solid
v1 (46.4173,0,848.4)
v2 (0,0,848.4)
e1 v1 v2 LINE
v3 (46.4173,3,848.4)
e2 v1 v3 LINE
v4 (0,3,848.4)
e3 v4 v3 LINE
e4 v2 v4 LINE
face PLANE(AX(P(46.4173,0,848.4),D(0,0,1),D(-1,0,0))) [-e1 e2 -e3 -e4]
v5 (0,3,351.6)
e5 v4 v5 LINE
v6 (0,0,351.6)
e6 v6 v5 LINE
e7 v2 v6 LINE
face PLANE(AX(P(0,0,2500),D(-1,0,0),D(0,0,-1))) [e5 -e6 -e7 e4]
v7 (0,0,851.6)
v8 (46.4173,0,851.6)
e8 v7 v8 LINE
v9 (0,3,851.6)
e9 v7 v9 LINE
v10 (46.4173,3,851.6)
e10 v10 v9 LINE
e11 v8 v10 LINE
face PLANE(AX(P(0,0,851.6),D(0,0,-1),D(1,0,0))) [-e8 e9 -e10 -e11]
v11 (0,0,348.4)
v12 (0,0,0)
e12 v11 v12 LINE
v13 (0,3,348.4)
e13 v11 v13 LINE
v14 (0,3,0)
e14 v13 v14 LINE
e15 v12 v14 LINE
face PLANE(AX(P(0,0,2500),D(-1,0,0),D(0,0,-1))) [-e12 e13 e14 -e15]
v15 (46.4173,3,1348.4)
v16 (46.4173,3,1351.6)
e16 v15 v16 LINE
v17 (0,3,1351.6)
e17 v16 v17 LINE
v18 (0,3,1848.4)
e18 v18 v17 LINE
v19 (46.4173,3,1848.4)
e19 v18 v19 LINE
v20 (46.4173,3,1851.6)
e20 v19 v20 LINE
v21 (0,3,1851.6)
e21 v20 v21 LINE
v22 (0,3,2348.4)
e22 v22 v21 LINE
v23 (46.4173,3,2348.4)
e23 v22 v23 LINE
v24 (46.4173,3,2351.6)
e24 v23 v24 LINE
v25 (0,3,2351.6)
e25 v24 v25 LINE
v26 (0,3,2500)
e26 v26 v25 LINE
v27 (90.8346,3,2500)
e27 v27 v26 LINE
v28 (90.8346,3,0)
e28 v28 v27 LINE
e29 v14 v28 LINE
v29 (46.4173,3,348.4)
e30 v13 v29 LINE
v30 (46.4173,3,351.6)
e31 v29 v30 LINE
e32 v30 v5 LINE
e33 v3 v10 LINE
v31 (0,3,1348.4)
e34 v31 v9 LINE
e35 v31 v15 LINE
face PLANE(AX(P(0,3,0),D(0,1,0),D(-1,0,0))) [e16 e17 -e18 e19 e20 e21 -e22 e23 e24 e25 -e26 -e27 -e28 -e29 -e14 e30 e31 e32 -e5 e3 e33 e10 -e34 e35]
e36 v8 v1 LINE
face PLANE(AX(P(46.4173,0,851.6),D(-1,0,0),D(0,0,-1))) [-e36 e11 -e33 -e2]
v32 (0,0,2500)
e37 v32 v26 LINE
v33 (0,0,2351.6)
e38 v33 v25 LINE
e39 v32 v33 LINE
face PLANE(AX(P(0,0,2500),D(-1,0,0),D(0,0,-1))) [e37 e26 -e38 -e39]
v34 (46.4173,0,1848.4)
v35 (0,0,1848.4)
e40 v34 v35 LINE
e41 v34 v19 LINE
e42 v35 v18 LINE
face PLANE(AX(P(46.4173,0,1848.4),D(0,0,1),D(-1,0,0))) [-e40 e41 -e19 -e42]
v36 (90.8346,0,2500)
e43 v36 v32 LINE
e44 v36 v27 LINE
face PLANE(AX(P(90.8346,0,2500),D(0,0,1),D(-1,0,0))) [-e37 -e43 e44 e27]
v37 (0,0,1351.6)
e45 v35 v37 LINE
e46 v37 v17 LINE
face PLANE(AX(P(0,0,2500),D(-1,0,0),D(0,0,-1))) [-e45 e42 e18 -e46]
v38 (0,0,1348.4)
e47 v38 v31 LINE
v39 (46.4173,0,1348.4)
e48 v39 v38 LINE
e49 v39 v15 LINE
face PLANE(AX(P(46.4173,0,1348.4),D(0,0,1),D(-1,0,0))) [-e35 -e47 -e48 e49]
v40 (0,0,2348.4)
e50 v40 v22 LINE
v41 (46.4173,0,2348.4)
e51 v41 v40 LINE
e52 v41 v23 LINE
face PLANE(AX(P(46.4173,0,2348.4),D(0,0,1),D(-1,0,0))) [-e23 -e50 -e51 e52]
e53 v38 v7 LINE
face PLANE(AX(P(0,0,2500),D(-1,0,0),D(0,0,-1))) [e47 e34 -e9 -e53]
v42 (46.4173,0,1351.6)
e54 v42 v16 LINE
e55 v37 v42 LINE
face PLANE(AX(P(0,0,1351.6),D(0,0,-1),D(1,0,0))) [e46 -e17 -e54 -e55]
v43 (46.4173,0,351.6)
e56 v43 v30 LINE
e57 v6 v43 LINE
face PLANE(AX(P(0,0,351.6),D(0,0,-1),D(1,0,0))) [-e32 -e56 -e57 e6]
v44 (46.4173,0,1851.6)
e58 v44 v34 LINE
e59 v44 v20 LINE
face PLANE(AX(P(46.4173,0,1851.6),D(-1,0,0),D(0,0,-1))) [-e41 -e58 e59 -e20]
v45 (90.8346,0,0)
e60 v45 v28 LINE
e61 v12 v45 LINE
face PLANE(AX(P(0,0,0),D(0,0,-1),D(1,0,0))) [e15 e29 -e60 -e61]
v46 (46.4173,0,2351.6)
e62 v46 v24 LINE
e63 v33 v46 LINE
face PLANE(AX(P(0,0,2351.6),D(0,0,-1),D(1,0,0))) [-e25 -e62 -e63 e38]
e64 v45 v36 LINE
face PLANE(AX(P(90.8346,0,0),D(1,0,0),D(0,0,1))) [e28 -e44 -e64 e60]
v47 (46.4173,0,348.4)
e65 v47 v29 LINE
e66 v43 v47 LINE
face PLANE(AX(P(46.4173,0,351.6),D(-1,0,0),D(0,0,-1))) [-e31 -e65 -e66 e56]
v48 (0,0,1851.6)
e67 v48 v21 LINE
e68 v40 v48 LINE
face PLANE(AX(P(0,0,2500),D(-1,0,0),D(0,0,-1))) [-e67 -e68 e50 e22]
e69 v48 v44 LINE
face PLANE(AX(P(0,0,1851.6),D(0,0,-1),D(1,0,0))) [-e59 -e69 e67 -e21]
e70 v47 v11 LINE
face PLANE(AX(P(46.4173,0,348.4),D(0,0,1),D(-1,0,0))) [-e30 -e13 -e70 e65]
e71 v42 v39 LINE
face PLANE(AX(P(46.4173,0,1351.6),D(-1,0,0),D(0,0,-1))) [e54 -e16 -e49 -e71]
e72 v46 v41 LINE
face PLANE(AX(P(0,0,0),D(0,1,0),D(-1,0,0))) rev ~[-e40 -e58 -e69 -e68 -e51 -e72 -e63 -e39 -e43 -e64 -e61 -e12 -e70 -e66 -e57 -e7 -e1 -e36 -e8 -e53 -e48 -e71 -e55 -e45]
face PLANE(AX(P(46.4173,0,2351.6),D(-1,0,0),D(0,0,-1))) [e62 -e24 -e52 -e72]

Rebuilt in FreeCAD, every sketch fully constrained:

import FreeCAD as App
import Part
import Sketcher
from FreeCAD import Vector

doc = App.newDocument("Part")
params = doc.addObject("Spreadsheet::Sheet", "Params")
for row, (alias, value) in enumerate([
    ("sketch1_height", "2500 mm"),
    ("pad1_length", "3 mm"),
    ("sketch2_height", "3.2 mm"),
    ("linearpattern_pitch", "500 mm"),
], start=1):
    params.set(f"A{row}", alias)
    params.set(f"B{row}", "=" + value)
    params.setAlias(f"B{row}", alias)

body = doc.addObject("PartDesign::Body", "Body")

# Sketch on XZ plane
sketch1 = doc.addObject("Sketcher::SketchObject", "Sketch")
body.addObject(sketch1)
sketch1.AttachmentSupport = (doc.XZ_Plane, [""])
sketch1.MapMode = "FlatFace"
sketch1.addGeometry(Part.LineSegment(Vector(91, 0, 0), Vector(0, 0, 0)), False)
sketch1.addGeometry(Part.LineSegment(Vector(0, 0, 0), Vector(0, 2500, 0)), False)
sketch1.addGeometry(Part.LineSegment(Vector(0, 2500, 0), Vector(91, 2500, 0)), False)
sketch1.addGeometry(Part.LineSegment(Vector(91, 2500, 0), Vector(91, 0, 0)), False)
sketch1.addConstraint(Sketcher.Constraint("Coincident", 0, 2, 1, 1))
sketch1.addConstraint(Sketcher.Constraint("Coincident", 1, 2, 2, 1))
sketch1.addConstraint(Sketcher.Constraint("Coincident", 2, 2, 3, 1))
sketch1.addConstraint(Sketcher.Constraint("Coincident", 3, 2, 0, 1))
sketch1.addConstraint(Sketcher.Constraint("Horizontal", 0))
sketch1.addConstraint(Sketcher.Constraint("Vertical", 1))
sketch1.addConstraint(Sketcher.Constraint("Horizontal", 2))
sketch1.addConstraint(Sketcher.Constraint("Vertical", 3))
sketch1.addConstraint(Sketcher.Constraint("Coincident", 0, 2, -1, 1))
sketch1.addConstraint(Sketcher.Constraint("DistanceY", 1, 1, 1, 2, 2500.0))
sketch1.addConstraint(Sketcher.Constraint("DistanceX", 0, 2, 0, 1, 90.8346))
sketch1.setExpression("Constraints[9]", "Params.sketch1_height")
pad1 = doc.addObject("PartDesign::Pad", "Pad")
body.addObject(pad1)
pad1.Profile = sketch1
pad1.setExpression("Length", "Params.pad1_length")
pad1.Reversed = True

# Sketch on XZ plane
sketch2 = doc.addObject("Sketcher::SketchObject", "Sketch001")
body.addObject(sketch2)
sketch2.AttachmentSupport = (doc.XZ_Plane, [""])
sketch2.MapMode = "FlatFace"
sketch2.addGeometry(Part.LineSegment(Vector(46.4, 351.6, 0), Vector(0, 351.6, 0)), False)
sketch2.addGeometry(Part.LineSegment(Vector(0, 351.6, 0), Vector(0, 348.4, 0)), False)
sketch2.addGeometry(Part.LineSegment(Vector(0, 348.4, 0), Vector(46.4, 348.4, 0)), False)
sketch2.addGeometry(Part.LineSegment(Vector(46.4, 348.4, 0), Vector(46.4, 351.6, 0)), False)
sketch2.addConstraint(Sketcher.Constraint("Coincident", 0, 2, 1, 1))
sketch2.addConstraint(Sketcher.Constraint("Coincident", 1, 2, 2, 1))
sketch2.addConstraint(Sketcher.Constraint("Coincident", 2, 2, 3, 1))
sketch2.addConstraint(Sketcher.Constraint("Coincident", 3, 2, 0, 1))
sketch2.addConstraint(Sketcher.Constraint("Horizontal", 0))
sketch2.addConstraint(Sketcher.Constraint("Vertical", 1))
sketch2.addConstraint(Sketcher.Constraint("Horizontal", 2))
sketch2.addConstraint(Sketcher.Constraint("Vertical", 3))
sketch2.addConstraint(Sketcher.Constraint("PointOnObject", 0, 2, -2))
sketch2.addConstraint(Sketcher.Constraint("DistanceY", 1, 2, 1, 1, 3.2))
sketch2.addConstraint(Sketcher.Constraint("DistanceY", -1, 1, 1, 2, 348.4))
sketch2.addConstraint(Sketcher.Constraint("DistanceX", 0, 2, 0, 1, 46.4173))
sketch2.setExpression("Constraints[9]", "Params.sketch2_height")
pocket1 = doc.addObject("PartDesign::Pocket", "Pocket")
body.addObject(pocket1)
pocket1.Profile = sketch2
pocket1.Type = "ThroughAll"
doc.recompute()

linearpattern = doc.addObject("PartDesign::LinearPattern", "LinearPattern")
body.addObject(linearpattern)
linearpattern.Originals = [pocket1]
linearpattern.Direction = (doc.Z_Axis, [""])
linearpattern.Mode = "offset"
linearpattern.setExpression("Offset", "Params.linearpattern_pitch")
linearpattern.Occurrences = 5
body.Tip = linearpattern

doc.recompute()
